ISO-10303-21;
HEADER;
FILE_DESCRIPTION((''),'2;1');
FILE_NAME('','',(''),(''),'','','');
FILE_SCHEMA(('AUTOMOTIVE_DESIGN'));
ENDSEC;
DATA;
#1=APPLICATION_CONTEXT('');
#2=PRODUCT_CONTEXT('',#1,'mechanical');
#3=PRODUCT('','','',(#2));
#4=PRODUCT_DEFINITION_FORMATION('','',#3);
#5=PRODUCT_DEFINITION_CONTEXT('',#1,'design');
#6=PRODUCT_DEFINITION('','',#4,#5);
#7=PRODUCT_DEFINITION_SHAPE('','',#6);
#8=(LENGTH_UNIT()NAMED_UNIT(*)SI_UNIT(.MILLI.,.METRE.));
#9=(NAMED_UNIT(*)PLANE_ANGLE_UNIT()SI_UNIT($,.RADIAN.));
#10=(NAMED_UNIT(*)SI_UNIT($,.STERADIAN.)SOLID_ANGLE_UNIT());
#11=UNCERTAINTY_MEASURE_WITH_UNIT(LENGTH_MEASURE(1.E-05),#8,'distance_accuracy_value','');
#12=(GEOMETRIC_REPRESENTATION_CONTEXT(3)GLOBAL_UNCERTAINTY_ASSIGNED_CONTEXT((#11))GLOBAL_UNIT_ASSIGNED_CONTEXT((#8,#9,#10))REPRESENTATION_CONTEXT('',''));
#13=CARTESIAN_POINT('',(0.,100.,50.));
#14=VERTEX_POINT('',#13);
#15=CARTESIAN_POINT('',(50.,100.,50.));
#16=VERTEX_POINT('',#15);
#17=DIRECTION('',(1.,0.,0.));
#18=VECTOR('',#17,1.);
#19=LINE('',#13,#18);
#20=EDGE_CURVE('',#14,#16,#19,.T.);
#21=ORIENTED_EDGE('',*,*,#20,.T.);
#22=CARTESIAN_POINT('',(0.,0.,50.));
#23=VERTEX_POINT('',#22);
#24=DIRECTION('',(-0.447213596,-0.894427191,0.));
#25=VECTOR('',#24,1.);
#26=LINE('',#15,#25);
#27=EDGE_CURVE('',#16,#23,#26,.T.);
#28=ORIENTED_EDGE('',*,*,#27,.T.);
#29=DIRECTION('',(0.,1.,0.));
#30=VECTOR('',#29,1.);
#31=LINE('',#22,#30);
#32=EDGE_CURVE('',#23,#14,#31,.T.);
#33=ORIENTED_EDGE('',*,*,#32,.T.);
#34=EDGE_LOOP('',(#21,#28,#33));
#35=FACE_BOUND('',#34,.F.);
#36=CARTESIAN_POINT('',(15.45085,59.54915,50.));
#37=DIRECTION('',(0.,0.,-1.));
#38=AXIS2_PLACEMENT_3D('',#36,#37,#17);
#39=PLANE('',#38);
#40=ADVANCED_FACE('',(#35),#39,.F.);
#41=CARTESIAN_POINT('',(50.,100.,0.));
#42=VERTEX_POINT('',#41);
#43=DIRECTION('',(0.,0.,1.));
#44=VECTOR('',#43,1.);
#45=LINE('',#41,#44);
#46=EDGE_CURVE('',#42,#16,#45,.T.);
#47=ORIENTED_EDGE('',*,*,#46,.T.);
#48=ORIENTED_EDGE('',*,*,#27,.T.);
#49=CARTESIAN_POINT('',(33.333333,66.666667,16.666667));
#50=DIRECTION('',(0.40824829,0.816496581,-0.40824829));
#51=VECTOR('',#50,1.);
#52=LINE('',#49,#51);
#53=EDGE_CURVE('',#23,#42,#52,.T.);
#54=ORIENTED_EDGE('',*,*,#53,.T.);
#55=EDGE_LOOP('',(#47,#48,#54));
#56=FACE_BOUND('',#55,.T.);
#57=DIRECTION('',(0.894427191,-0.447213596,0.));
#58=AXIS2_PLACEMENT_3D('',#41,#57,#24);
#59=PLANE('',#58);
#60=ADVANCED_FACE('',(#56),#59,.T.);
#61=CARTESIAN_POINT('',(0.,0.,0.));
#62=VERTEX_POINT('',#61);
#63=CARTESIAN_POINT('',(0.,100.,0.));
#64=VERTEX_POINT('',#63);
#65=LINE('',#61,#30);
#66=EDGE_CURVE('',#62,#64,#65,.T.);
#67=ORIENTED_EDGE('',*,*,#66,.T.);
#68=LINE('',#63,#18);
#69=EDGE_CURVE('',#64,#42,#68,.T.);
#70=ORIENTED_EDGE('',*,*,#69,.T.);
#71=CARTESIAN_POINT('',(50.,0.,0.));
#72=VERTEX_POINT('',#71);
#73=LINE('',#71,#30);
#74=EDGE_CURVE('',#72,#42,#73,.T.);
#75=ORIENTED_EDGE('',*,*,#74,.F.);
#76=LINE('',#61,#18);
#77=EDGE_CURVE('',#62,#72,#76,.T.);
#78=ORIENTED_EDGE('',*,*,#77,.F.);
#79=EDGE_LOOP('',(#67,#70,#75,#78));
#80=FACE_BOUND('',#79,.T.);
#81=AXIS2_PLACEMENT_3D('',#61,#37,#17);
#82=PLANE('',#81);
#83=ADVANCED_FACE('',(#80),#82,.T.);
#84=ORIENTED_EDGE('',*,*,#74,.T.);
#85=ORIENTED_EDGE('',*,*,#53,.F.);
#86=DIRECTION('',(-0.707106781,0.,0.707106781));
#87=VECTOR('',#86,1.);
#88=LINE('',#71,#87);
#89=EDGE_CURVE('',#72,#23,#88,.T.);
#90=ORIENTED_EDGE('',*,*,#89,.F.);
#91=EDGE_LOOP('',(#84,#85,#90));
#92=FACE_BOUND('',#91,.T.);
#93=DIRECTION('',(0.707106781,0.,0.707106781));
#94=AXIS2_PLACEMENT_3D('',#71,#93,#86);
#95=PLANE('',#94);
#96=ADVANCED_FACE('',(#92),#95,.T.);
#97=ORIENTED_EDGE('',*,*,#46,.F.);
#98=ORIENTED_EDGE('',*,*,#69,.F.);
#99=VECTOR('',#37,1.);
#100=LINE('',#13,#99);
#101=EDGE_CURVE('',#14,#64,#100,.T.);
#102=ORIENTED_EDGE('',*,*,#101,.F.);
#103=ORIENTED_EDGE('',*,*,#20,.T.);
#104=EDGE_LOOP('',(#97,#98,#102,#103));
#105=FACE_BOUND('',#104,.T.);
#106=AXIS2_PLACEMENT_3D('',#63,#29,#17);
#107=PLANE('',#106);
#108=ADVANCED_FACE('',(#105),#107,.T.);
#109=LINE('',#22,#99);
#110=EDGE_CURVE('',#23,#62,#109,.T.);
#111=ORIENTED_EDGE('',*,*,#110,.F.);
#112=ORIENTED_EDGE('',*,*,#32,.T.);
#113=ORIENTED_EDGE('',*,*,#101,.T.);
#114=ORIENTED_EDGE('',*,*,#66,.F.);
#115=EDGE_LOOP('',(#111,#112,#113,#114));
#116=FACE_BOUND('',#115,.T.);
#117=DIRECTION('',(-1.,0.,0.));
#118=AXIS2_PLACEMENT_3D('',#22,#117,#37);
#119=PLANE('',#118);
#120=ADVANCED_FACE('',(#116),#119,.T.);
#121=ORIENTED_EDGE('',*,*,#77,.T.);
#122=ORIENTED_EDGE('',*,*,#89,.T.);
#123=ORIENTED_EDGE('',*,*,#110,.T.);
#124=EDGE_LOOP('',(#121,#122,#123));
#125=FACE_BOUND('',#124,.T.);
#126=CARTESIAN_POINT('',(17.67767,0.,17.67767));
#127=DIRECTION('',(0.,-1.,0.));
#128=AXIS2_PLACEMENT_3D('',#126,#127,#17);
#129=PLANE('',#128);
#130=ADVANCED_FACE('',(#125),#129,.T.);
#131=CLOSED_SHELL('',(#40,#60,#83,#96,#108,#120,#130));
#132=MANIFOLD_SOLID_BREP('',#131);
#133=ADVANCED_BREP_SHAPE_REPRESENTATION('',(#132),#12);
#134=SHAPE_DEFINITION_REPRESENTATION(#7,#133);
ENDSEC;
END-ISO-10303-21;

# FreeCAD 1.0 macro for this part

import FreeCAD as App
import Part
import Sketcher
Q = App.Units.Quantity

doc = App.newDocument("Part")
params = doc.addObject("Spreadsheet::Sheet", "Params")
for row, (alias, value) in enumerate([
    ("sketch1_width", "50 mm"),
    ("pad1_length", "100 mm"),
    ("sketch2_width", "50 mm"),
    ("sketch2_height", "100 mm"),
    ("pad2_length", "50 mm"),
], start=1):
    params.set(f"A{row}", alias)
    params.set(f"B{row}", "=" + value)
    params.setAlias(f"B{row}", alias)

body = doc.addObject("PartDesign::Body", "Body")

sketch1 = doc.addObject("Sketcher::SketchObject", "Sketch")
body.addObject(sketch1)
sketch1.AttachmentSupport = (doc.XZ_Plane, [""])
sketch1.MapMode = "FlatFace"
sketch1.addGeometry(Part.LineSegment(App.Vector(0, 50, 0), App.Vector(0, 0, 0)), False)
sketch1.addGeometry(Part.LineSegment(App.Vector(0, 0, 0), App.Vector(50, 0, 0)), False)
sketch1.addGeometry(Part.LineSegment(App.Vector(50, 0, 0), App.Vector(0, 50, 0)), False)
sketch1.addConstraint(Sketcher.Constraint("Coincident", 0, 2, 1, 1))
sketch1.addConstraint(Sketcher.Constraint("Coincident", 1, 2, 2, 1))
sketch1.addConstraint(Sketcher.Constraint("Coincident", 2, 2, 0, 1))
sketch1.addConstraint(Sketcher.Constraint("Vertical", 0))
sketch1.addConstraint(Sketcher.Constraint("Horizontal", 1))
sketch1.addConstraint(Sketcher.Constraint("Coincident", 0, 2, -1, 1))
sketch1.addConstraint(Sketcher.Constraint("Equal", 1, 0))
sketch1.addConstraint(Sketcher.Constraint("DistanceX", 1, 1, 1, 2, Q("50 mm")))
sketch1.setExpression("Constraints[7]", "Params.sketch1_width")
pad1 = doc.addObject("PartDesign::Pad", "Pad")
body.addObject(pad1)
pad1.Profile = sketch1
pad1.setExpression("Length", "Params.pad1_length")
pad1.Reversed = True

sketch2 = doc.addObject("Sketcher::SketchObject", "Sketch001")
body.addObject(sketch2)
sketch2.AttachmentSupport = (doc.XY_Plane, [""])
sketch2.MapMode = "FlatFace"
sketch2.addGeometry(Part.LineSegment(App.Vector(50, 100, 0), App.Vector(0, 0, 0)), False)
sketch2.addGeometry(Part.LineSegment(App.Vector(0, 0, 0), App.Vector(0, 100, 0)), False)
sketch2.addGeometry(Part.LineSegment(App.Vector(0, 100, 0), App.Vector(50, 100, 0)), False)
sketch2.addConstraint(Sketcher.Constraint("Coincident", 0, 2, 1, 1))
sketch2.addConstraint(Sketcher.Constraint("Coincident", 1, 2, 2, 1))
sketch2.addConstraint(Sketcher.Constraint("Coincident", 2, 2, 0, 1))
sketch2.addConstraint(Sketcher.Constraint("Vertical", 1))
sketch2.addConstraint(Sketcher.Constraint("Horizontal", 2))
sketch2.addConstraint(Sketcher.Constraint("Coincident", 0, 2, -1, 1))
sketch2.addConstraint(Sketcher.Constraint("DistanceX", 2, 1, 2, 2, Q("50 mm")))
sketch2.addConstraint(Sketcher.Constraint("DistanceY", 1, 1, 1, 2, Q("100 mm")))
sketch2.setExpression("Constraints[6]", "Params.sketch2_width")
sketch2.setExpression("Constraints[7]", "Params.sketch2_height")
pad2 = doc.addObject("PartDesign::Pad", "Pad001")
body.addObject(pad2)
pad2.Profile = sketch2
pad2.setExpression("Length", "Params.pad2_length")

doc.recompute()
